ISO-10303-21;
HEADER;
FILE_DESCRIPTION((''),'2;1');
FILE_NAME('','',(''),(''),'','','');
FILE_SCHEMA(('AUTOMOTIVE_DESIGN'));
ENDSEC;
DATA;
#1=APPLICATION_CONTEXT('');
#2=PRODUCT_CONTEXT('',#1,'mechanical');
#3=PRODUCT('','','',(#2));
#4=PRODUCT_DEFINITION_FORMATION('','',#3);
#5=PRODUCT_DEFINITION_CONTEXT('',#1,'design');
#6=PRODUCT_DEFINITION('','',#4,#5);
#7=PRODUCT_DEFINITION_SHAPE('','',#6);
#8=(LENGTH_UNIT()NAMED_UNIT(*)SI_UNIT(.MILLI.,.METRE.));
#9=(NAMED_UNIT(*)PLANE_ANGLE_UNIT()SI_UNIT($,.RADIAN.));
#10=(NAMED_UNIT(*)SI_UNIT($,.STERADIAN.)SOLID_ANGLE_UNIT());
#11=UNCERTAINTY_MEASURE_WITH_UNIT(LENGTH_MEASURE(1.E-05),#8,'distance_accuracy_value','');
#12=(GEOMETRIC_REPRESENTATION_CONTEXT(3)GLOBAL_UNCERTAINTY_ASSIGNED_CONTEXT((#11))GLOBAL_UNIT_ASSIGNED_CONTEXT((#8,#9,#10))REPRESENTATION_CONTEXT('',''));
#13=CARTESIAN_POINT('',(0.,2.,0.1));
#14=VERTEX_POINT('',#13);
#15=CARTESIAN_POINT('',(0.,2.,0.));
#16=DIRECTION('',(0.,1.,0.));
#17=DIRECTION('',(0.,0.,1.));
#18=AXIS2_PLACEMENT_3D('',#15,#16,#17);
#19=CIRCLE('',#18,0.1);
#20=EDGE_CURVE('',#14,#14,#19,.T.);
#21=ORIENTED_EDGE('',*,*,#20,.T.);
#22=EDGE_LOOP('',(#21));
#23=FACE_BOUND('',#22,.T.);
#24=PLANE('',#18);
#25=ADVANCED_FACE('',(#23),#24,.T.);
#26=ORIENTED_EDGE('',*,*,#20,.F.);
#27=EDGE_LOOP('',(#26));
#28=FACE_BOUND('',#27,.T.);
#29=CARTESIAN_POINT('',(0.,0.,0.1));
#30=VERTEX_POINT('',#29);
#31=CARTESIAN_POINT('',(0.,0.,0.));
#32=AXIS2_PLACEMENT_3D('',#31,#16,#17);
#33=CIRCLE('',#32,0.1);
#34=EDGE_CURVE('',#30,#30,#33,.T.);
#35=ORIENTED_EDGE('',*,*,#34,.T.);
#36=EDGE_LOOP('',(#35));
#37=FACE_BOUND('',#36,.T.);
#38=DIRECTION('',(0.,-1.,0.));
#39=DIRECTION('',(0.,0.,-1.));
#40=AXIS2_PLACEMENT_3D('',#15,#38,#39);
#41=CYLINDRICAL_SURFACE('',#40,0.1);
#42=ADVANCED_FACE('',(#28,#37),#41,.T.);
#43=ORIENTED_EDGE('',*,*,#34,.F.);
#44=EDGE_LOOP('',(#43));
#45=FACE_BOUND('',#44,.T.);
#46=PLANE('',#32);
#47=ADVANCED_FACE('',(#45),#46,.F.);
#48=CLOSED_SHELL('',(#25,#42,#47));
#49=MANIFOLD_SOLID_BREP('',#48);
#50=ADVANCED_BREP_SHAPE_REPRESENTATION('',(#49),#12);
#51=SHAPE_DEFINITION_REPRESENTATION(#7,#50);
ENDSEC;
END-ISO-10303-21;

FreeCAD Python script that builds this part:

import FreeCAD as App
import Part
import Sketcher
from FreeCAD import Vector

doc = App.newDocument("Part")
body = doc.addObject("PartDesign::Body", "Body")

# Sketch on XZ plane
sketch1 = body.newObject("Sketcher::SketchObject", "Sketch")
sketch1.AttachmentSupport = (doc.getObject("XZ_Plane"), [""])
sketch1.MapMode = "FlatFace"
sketch1.addGeometry(Part.Circle(Vector(0, 0, 0), Vector(0, 0, 1), 0.1), False)
sketch1.addConstraint(Sketcher.Constraint("Coincident", 0, 3, -1, 1))
sketch1.addConstraint(Sketcher.Constraint("Diameter", 0, 0.2))
pad1 = body.newObject("PartDesign::Pad", "Pad")
pad1.Profile = sketch1
pad1.Length = 2
pad1.Reversed = True

doc.recompute()
